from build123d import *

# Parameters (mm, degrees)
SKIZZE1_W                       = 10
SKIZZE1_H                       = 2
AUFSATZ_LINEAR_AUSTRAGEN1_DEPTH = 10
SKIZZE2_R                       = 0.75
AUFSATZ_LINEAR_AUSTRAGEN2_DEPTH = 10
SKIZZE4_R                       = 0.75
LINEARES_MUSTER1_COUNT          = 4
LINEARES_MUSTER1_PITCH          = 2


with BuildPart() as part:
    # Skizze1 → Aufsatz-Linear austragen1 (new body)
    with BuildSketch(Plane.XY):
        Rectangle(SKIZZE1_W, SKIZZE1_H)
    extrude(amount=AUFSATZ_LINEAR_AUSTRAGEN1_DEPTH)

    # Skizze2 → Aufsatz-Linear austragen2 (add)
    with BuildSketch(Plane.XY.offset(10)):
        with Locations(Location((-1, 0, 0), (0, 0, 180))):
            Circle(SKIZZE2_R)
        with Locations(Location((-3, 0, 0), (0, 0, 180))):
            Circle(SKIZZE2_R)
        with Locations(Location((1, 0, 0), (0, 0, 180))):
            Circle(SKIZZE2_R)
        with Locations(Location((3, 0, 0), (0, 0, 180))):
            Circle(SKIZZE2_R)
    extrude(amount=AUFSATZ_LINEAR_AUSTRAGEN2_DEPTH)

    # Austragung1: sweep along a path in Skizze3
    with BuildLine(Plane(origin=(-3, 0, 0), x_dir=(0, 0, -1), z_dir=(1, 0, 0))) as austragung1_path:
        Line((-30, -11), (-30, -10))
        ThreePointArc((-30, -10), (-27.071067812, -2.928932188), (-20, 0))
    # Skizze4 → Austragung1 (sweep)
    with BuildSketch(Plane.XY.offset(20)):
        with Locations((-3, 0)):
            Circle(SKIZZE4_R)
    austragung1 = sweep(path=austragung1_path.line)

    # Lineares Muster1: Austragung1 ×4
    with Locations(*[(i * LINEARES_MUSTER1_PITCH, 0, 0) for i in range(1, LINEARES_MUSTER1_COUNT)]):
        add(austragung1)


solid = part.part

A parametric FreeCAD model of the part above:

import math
import FreeCAD as App
import Part
import Sketcher
Q = App.Units.Quantity


def add_polygon(sketch, points):
    """Adds a closed chain of lines whose ends are joined by coincident constraints."""
    first, n = sketch.GeometryCount, len(points)
    for a, b in zip(points, points[1:] + points[:1]):
        sketch.addGeometry(Part.LineSegment(App.Vector(*a, 0), App.Vector(*b, 0)), False)
    for i in range(n):
        sketch.addConstraint(Sketcher.Constraint("Coincident", first + i, 2, first + (i + 1) % n, 1))

doc = App.newDocument("Part")
body = doc.addObject("PartDesign::Body", "Body")

# Sketch on XY plane
sketch1 = doc.addObject("Sketcher::SketchObject", "Sketch")
body.addObject(sketch1)
sketch1.AttachmentSupport = (doc.XY_Plane, [""])
sketch1.MapMode = "FlatFace"
add_polygon(sketch1, [(-5, 1), (-5, -1), (5, -1), (5, 1)])  # lines 0-3
sketch1.addConstraint(Sketcher.Constraint("Vertical", 0))
sketch1.addConstraint(Sketcher.Constraint("Horizontal", 1))
sketch1.addConstraint(Sketcher.Constraint("Vertical", 2))
sketch1.addConstraint(Sketcher.Constraint("Horizontal", 3))
sketch1.addConstraint(Sketcher.Constraint("Symmetric", 0, 2, 2, 2, -1, 1))
sketch1.addConstraint(Sketcher.Constraint("DistanceX", 1, 1, 1, 2, Q("10 mm")))
sketch1.addConstraint(Sketcher.Constraint("DistanceY", 0, 2, 0, 1, Q("2 mm")))
pad1 = doc.addObject("PartDesign::Pad", "Pad")
body.addObject(pad1)
pad1.Profile = sketch1
pad1.Length = 10

# Sketch on XY plane
sketch2 = doc.addObject("Sketcher::SketchObject", "Sketch001")
body.addObject(sketch2)
sketch2.AttachmentSupport = (doc.XY_Plane, [""])
sketch2.MapMode = "FlatFace"
sketch2.AttachmentOffset = App.Placement(App.Vector(0, 0, 10), App.Rotation())
sketch2.addGeometry(Part.Circle(App.Vector(-1, 0, 0), App.Vector(0, 0, 1), 0.75), False)
sketch2.addGeometry(Part.Circle(App.Vector(-3, 0, 0), App.Vector(0, 0, 1), 0.75), False)
sketch2.addGeometry(Part.Circle(App.Vector(1, 0, 0), App.Vector(0, 0, 1), 0.75), False)
sketch2.addGeometry(Part.Circle(App.Vector(3, 0, 0), App.Vector(0, 0, 1), 0.75), False)
sketch2.addConstraint(Sketcher.Constraint("Equal", 0, 1))
sketch2.addConstraint(Sketcher.Constraint("Equal", 1, 2))
sketch2.addConstraint(Sketcher.Constraint("Equal", 2, 3))
sketch2.addConstraint(Sketcher.Constraint("Symmetric", 0, 3, 2, 3, -1, 1))
sketch2.addConstraint(Sketcher.Constraint("Symmetric", 1, 3, 3, 3, -1, 1))
sketch2.addConstraint(Sketcher.Constraint("PointOnObject", 0, 3, -1))
sketch2.addConstraint(Sketcher.Constraint("PointOnObject", 1, 3, -1))
sketch2.addConstraint(Sketcher.Constraint("Diameter", 0, Q("1.5 mm")))
sketch2.addConstraint(Sketcher.Constraint("DistanceX", 0, 3, -1, 1, Q("1 mm")))
sketch2.addConstraint(Sketcher.Constraint("DistanceX", 1, 3, -1, 1, Q("3 mm")))
pad2 = doc.addObject("PartDesign::Pad", "Pad001")
body.addObject(pad2)
pad2.Profile = sketch2
pad2.Length = 10

# Sketch on XY plane
sketch3 = doc.addObject("Sketcher::SketchObject", "Sketch002")
body.addObject(sketch3)
sketch3.AttachmentSupport = (doc.XY_Plane, [""])
sketch3.MapMode = "FlatFace"
sketch3.AttachmentOffset = App.Placement(App.Vector(0, 0, 20), App.Rotation())
sketch3.addGeometry(Part.Circle(App.Vector(-3, 0, 0), App.Vector(0, 0, 1), 0.75), False)
sketch3.addConstraint(Sketcher.Constraint("PointOnObject", 0, 3, -1))
sketch3.addConstraint(Sketcher.Constraint("Diameter", 0, Q("1.5 mm")))
sketch3.addConstraint(Sketcher.Constraint("DistanceX", 0, 3, -1, 1, Q("3 mm")))

# Sketch on YZ plane
sketch4 = doc.addObject("Sketcher::SketchObject", "Sketch003")
body.addObject(sketch4)
sketch4.AttachmentSupport = (doc.YZ_Plane, [""])
sketch4.MapMode = "FlatFace"
sketch4.AttachmentOffset = App.Placement(App.Vector(0, 0, -3), App.Rotation())
sketch4.addGeometry(Part.LineSegment(App.Vector(-11, 30, 0), App.Vector(-10, 30, 0)), False)
sketch4.addGeometry(Part.ArcOfCircle(Part.Circle(App.Vector(-10, 20, 0), App.Vector(0, 0, 1), 10), math.radians(0), math.radians(90)), False)
sketch4.addConstraint(Sketcher.Constraint("Tangent", 0, 2, 1, 2))
sketch4.addConstraint(Sketcher.Constraint("Horizontal", 0))
sketch4.addConstraint(Sketcher.Constraint("PointOnObject", 1, 1, -2))
sketch4.addConstraint(Sketcher.Constraint("Radius", 1, Q("10 mm")))
sketch4.addConstraint(Sketcher.Constraint("DistanceX", 0, 1, 0, 2, Q("1 mm")))
sketch4.addConstraint(Sketcher.Constraint("DistanceY", -1, 1, 1, 3, Q("20 mm")))
sketch4.addConstraint(Sketcher.Constraint("DistanceY", -1, 1, 1, 1, Q("20 mm")))
doc.recompute()

additivepipe = doc.addObject("PartDesign::AdditivePipe", "AdditivePipe")
body.addObject(additivepipe)
additivepipe.Profile = sketch3
additivepipe.Spine = (sketch4, ["Edge1", "Edge2"])
doc.recompute()

linearpattern = doc.addObject("PartDesign::LinearPattern", "LinearPattern")
body.addObject(linearpattern)
linearpattern.Originals = [additivepipe]
linearpattern.Direction = (doc.X_Axis, [""])
linearpattern.Mode = "offset"
linearpattern.Offset = 2
linearpattern.Occurrences = 4
body.Tip = linearpattern

doc.recompute()
